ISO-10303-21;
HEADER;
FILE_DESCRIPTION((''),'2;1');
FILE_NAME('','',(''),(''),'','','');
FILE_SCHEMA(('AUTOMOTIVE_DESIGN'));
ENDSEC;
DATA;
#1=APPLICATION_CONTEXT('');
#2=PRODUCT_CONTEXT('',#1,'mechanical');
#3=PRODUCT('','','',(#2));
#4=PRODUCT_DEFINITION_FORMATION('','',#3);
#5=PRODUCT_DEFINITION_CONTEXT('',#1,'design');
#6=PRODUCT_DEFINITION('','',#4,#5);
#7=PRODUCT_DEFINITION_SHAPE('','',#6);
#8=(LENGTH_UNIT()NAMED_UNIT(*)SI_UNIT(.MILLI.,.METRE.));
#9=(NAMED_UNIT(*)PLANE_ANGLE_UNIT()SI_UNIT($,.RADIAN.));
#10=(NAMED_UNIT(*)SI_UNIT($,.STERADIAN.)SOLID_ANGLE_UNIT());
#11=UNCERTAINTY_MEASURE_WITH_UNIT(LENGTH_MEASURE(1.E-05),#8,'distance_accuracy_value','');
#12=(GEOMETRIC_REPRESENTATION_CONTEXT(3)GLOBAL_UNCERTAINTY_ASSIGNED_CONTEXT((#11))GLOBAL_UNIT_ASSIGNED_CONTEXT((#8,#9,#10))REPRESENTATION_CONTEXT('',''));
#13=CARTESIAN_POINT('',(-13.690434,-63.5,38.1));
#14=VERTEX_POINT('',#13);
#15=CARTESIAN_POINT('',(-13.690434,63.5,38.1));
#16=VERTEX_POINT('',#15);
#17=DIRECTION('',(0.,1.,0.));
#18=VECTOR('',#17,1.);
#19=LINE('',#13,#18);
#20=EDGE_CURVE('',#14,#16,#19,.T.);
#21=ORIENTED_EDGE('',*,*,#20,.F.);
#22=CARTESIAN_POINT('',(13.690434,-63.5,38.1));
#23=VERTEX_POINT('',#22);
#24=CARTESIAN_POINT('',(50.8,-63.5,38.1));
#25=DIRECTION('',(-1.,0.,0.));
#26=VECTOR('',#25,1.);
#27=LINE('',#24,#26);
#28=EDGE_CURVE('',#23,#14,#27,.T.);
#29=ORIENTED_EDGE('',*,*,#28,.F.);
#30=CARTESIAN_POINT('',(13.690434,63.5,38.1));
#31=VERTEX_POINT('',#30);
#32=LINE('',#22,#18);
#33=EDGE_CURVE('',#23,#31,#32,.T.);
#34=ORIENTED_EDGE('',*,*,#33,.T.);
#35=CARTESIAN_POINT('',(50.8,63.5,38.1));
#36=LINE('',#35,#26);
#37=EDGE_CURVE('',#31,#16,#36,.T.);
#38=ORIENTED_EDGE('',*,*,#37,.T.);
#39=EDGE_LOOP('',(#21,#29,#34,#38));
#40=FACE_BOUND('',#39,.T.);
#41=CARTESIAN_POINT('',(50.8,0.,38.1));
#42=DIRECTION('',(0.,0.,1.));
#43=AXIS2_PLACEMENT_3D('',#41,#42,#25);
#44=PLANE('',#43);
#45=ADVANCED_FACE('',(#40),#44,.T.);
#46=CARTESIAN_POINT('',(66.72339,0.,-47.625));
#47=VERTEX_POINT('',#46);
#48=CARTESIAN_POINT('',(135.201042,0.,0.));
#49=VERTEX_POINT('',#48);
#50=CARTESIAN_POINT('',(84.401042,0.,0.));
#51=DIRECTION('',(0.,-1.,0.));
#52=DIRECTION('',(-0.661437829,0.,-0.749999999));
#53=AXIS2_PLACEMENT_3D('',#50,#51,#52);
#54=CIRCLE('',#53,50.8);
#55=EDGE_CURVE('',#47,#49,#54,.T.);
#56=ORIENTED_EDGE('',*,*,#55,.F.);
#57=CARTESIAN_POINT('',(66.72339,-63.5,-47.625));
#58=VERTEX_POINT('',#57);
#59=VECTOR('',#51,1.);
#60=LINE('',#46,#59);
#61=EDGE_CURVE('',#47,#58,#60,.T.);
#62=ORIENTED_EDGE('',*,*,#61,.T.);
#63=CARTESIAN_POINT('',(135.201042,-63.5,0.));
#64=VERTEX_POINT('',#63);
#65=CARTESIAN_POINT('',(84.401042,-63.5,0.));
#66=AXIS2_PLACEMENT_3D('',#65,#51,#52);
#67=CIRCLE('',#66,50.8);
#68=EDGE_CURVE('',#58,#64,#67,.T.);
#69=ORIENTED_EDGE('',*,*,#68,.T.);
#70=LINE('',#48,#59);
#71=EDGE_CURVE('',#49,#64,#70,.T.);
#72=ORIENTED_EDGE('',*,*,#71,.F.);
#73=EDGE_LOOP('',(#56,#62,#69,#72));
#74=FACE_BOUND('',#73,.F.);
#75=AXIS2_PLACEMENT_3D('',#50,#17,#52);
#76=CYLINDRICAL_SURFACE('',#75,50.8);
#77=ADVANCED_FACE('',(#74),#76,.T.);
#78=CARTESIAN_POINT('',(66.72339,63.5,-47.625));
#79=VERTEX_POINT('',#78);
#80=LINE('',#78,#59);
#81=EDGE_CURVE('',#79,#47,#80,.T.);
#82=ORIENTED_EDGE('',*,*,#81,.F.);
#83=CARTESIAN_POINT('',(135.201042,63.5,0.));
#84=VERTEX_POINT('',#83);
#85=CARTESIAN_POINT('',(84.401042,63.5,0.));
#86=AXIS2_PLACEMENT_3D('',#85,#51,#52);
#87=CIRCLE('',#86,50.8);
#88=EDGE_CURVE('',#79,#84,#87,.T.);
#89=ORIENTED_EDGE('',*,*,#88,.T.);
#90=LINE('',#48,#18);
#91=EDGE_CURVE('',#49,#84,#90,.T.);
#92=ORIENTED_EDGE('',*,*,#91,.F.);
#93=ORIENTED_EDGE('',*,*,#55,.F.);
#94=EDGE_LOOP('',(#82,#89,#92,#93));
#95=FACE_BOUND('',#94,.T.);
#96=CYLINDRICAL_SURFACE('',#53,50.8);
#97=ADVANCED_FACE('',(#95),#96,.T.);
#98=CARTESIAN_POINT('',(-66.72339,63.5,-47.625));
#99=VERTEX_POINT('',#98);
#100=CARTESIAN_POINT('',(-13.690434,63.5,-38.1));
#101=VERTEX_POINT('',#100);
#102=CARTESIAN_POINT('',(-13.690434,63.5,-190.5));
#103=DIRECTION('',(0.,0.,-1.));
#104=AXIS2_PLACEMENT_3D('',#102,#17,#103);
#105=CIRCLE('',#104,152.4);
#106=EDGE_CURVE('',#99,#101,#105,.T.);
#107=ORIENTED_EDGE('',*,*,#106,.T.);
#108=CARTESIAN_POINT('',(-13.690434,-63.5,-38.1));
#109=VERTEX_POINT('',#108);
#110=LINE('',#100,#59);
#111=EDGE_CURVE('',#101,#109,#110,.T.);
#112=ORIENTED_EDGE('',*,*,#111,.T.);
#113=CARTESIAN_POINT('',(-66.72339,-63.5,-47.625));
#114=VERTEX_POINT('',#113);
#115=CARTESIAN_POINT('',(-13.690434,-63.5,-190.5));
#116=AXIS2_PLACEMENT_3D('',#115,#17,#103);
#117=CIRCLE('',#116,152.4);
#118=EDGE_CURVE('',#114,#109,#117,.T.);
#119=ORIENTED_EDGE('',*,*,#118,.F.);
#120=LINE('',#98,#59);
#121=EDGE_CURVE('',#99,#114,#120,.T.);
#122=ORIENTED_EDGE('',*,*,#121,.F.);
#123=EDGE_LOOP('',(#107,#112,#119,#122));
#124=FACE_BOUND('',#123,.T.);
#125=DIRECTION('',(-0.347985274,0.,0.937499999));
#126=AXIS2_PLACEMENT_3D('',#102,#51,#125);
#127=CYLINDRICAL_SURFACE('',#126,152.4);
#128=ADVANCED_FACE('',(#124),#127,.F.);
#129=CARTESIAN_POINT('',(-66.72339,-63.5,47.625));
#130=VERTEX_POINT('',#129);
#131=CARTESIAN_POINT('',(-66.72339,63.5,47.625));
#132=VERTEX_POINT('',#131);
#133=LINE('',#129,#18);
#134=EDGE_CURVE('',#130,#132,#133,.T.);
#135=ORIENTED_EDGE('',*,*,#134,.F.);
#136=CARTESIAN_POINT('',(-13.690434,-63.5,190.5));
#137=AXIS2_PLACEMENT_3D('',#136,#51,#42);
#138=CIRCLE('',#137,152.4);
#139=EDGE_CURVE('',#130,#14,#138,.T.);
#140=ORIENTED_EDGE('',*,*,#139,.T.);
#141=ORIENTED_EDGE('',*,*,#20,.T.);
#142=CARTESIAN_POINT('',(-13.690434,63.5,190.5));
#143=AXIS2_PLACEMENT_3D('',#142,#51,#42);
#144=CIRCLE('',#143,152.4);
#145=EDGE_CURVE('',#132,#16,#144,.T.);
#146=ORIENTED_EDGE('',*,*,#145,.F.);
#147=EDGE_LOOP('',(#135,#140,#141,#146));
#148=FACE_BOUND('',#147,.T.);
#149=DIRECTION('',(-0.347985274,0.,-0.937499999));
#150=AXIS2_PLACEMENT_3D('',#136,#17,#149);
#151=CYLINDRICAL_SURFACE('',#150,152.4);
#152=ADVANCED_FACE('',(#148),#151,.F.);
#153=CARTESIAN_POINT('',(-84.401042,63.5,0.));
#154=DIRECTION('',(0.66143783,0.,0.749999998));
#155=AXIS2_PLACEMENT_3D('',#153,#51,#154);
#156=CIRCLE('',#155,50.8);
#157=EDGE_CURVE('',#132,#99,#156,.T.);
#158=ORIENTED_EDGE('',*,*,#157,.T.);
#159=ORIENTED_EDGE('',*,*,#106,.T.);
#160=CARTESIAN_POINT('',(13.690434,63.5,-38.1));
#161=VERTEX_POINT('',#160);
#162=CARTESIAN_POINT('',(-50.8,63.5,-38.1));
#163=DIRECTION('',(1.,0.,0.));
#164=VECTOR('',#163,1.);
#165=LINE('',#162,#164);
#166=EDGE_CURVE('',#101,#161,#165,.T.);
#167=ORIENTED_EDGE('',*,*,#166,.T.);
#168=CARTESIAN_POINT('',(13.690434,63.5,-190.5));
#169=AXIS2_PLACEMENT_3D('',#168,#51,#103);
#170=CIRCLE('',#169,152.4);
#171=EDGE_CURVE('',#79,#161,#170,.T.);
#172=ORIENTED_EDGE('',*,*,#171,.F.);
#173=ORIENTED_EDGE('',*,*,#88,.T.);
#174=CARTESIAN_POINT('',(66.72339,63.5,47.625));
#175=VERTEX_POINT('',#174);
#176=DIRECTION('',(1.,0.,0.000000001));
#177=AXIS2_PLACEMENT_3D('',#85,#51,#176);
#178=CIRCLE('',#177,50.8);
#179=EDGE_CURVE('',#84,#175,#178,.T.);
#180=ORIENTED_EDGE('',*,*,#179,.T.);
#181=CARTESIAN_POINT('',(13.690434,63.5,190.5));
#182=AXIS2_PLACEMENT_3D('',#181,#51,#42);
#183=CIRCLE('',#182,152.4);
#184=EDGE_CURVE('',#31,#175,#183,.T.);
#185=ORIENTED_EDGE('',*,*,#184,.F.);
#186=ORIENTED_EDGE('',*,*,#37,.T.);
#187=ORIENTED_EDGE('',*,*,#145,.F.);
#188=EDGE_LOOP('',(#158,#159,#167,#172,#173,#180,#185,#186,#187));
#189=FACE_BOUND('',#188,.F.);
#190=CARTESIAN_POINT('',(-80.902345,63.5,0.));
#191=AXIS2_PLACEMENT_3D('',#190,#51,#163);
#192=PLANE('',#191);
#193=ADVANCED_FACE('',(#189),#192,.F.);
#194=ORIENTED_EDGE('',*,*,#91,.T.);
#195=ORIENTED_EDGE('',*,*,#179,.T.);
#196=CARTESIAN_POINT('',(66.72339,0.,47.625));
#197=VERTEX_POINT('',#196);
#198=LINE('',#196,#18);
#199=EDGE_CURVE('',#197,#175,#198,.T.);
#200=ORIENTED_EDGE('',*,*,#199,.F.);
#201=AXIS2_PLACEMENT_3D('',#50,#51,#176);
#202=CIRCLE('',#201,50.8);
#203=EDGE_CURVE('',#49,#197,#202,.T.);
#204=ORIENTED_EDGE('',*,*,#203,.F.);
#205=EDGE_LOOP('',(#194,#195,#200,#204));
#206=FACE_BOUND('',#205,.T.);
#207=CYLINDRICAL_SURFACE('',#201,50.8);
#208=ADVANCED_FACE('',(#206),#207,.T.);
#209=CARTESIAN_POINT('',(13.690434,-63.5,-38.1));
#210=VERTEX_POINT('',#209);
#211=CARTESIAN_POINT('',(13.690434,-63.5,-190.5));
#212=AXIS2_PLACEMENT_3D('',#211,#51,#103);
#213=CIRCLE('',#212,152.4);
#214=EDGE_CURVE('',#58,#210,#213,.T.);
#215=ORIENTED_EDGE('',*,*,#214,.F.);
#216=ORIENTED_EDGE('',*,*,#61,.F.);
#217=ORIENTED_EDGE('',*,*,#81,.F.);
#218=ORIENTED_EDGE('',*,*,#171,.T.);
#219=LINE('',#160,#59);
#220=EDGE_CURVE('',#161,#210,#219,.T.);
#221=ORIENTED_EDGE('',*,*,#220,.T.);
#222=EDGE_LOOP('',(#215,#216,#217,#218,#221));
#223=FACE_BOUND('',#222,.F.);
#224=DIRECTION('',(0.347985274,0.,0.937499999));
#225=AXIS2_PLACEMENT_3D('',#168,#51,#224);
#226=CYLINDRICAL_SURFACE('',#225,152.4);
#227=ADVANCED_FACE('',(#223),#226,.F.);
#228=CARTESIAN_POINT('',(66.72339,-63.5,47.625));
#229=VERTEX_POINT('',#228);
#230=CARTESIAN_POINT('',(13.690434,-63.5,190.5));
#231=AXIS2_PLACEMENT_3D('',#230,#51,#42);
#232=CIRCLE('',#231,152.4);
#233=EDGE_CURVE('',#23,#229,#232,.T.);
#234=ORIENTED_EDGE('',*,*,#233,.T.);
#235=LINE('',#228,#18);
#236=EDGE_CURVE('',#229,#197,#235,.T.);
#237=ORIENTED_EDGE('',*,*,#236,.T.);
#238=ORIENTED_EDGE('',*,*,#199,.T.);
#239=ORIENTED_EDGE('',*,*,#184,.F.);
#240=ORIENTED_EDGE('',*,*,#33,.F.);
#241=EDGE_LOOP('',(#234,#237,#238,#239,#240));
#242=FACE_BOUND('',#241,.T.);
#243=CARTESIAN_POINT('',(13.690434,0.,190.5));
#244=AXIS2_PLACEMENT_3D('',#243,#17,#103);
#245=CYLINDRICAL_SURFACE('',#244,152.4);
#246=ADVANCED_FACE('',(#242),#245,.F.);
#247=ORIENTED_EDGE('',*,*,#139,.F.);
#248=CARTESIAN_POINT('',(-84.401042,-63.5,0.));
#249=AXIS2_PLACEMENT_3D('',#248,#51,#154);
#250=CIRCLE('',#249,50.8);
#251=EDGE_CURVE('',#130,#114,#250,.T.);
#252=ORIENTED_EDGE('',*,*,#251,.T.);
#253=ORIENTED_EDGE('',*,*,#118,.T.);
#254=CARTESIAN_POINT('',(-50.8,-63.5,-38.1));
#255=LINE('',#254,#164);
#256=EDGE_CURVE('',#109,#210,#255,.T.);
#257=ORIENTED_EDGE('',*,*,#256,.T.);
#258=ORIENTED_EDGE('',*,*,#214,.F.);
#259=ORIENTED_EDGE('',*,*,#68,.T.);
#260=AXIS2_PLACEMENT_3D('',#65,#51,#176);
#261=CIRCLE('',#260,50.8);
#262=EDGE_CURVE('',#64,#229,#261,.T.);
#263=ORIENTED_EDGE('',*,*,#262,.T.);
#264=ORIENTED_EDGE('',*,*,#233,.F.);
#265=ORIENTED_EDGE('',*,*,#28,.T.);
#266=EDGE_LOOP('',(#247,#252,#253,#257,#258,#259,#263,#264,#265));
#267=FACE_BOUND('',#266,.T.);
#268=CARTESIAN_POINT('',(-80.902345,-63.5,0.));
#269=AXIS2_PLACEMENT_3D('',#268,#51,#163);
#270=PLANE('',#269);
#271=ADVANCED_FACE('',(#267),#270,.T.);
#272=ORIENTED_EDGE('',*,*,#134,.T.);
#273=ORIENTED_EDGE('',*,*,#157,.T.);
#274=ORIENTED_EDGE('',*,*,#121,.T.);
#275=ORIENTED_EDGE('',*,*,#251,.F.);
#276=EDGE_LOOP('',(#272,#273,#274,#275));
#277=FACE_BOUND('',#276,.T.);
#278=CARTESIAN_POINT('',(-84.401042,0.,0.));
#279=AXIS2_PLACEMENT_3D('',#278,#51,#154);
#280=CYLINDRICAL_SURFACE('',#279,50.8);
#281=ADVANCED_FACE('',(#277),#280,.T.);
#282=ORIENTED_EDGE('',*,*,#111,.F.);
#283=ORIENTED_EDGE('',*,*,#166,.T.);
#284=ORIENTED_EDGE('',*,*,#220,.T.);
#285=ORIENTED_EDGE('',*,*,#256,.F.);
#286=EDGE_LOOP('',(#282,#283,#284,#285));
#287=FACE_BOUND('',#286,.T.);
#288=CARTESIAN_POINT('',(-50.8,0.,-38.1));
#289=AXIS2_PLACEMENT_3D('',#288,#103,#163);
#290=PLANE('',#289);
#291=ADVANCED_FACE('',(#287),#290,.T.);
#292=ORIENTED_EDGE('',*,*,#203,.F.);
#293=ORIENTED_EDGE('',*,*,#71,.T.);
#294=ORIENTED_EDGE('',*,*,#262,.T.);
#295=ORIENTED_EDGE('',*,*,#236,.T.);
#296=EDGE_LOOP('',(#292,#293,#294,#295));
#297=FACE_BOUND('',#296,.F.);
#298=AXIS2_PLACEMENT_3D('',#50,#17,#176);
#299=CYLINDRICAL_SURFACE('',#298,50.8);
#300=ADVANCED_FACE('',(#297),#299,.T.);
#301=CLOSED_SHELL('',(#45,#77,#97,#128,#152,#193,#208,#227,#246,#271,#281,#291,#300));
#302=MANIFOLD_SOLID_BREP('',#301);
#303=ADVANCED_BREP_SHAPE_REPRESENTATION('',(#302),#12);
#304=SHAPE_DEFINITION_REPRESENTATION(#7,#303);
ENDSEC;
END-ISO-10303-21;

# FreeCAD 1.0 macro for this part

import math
import FreeCAD as App
import Part
import Sketcher
Q = App.Units.Quantity


def edges_at(feature, points):
    """Names of the edges that pass closest to the given points."""
    edges = feature.Shape.Edges
    near = lambda p: min(range(len(edges)), key=lambda i: edges[i].distToShape(Part.Vertex(*p))[0])
    return sorted({f"Edge{near(p) + 1}" for p in points})

doc = App.newDocument("Part")
params = doc.addObject("Spreadsheet::Sheet", "Params")
for row, (alias, value) in enumerate([
    ("sketch1_radius", "2 in"),
    ("sketch1_width", "4 in"),
    ("pad1_length", "5 in"),
    ("fillet_radius", "6 in"),
], start=1):
    params.set(f"A{row}", alias)
    params.set(f"B{row}", "=" + value)
    params.setAlias(f"B{row}", alias)

body = doc.addObject("PartDesign::Body", "Body")

# Sketch on XZ plane
sketch1 = body.newObject("Sketcher::SketchObject", "Sketch")
sketch1.AttachmentSupport = (doc.getObject("XZ_Plane"), [""])
sketch1.MapMode = "FlatFace"
sketch1.addGeometry([
    Part.ArcOfCircle(Part.Circle(App.Vector(-84.401042, 0, 0), App.Vector(0, 0, 1), 50.8), math.radians(48.590378), math.radians(311.409622)),  # 0
    Part.LineSegment(App.Vector(-50.8, -38.1, 0), App.Vector(50.8, -38.1, 0)),  # 1
    Part.ArcOfCircle(Part.Circle(App.Vector(84.401042, 0, 0), App.Vector(0, 0, 1), 50.8), math.radians(-131.409622), math.radians(0)),  # 2
    Part.ArcOfCircle(Part.Circle(App.Vector(84.401042, 0, 0), App.Vector(0, 0, 1), 50.8), math.radians(0), math.radians(131.409622)),  # 3
    Part.LineSegment(App.Vector(50.8, 38.1, 0), App.Vector(-50.8, 38.1, 0)),  # 4
], False)
sketch1.addConstraint([
    Sketcher.Constraint("Coincident", 0, 2, 1, 1),
    Sketcher.Constraint("Coincident", 1, 2, 2, 1),
    Sketcher.Constraint("Tangent", 2, 2, 3, 1),
    Sketcher.Constraint("Coincident", 3, 2, 4, 1),
    Sketcher.Constraint("Coincident", 4, 2, 0, 1),
    Sketcher.Constraint("Horizontal", 1),
    Sketcher.Constraint("Horizontal", 4),
    Sketcher.Constraint("Equal", 0, 2),
    Sketcher.Constraint("Equal", 2, 3),
    Sketcher.Constraint("Symmetric", 0, 3, 2, 3, -1, 1),
    Sketcher.Constraint("Symmetric", 1, 2, 3, 2, -1),
    Sketcher.Constraint("PointOnObject", 2, 2, -1),
    Sketcher.Constraint("Radius", 0, Q("2 in")),
    Sketcher.Constraint("DistanceX", 1, 1, 1, 2, Q("4 in")),
    Sketcher.Constraint("DistanceY", 1, 2, 3, 2, Q("3 in")),
])
sketch1.setExpression("Constraints[12]", "Params.sketch1_radius")
sketch1.setExpression("Constraints[13]", "Params.sketch1_width")
pad1 = body.newObject("PartDesign::Pad", "Pad")
pad1.Profile = sketch1
pad1.setExpression("Length", "Params.pad1_length")
pad1.Midplane = True
doc.recompute()

fillet = body.newObject("PartDesign::Fillet", "Fillet")
fillet.Base = (pad1, edges_at(pad1, [
    (-50.8, 0, 38.1),
    (50.8, 31.75, 38.1),
    (-50.8, 0, -38.1),
    (50.8, -31.75, -38.1),
]))
fillet.setExpression("Radius", "Params.fillet_radius")

doc.recompute()
